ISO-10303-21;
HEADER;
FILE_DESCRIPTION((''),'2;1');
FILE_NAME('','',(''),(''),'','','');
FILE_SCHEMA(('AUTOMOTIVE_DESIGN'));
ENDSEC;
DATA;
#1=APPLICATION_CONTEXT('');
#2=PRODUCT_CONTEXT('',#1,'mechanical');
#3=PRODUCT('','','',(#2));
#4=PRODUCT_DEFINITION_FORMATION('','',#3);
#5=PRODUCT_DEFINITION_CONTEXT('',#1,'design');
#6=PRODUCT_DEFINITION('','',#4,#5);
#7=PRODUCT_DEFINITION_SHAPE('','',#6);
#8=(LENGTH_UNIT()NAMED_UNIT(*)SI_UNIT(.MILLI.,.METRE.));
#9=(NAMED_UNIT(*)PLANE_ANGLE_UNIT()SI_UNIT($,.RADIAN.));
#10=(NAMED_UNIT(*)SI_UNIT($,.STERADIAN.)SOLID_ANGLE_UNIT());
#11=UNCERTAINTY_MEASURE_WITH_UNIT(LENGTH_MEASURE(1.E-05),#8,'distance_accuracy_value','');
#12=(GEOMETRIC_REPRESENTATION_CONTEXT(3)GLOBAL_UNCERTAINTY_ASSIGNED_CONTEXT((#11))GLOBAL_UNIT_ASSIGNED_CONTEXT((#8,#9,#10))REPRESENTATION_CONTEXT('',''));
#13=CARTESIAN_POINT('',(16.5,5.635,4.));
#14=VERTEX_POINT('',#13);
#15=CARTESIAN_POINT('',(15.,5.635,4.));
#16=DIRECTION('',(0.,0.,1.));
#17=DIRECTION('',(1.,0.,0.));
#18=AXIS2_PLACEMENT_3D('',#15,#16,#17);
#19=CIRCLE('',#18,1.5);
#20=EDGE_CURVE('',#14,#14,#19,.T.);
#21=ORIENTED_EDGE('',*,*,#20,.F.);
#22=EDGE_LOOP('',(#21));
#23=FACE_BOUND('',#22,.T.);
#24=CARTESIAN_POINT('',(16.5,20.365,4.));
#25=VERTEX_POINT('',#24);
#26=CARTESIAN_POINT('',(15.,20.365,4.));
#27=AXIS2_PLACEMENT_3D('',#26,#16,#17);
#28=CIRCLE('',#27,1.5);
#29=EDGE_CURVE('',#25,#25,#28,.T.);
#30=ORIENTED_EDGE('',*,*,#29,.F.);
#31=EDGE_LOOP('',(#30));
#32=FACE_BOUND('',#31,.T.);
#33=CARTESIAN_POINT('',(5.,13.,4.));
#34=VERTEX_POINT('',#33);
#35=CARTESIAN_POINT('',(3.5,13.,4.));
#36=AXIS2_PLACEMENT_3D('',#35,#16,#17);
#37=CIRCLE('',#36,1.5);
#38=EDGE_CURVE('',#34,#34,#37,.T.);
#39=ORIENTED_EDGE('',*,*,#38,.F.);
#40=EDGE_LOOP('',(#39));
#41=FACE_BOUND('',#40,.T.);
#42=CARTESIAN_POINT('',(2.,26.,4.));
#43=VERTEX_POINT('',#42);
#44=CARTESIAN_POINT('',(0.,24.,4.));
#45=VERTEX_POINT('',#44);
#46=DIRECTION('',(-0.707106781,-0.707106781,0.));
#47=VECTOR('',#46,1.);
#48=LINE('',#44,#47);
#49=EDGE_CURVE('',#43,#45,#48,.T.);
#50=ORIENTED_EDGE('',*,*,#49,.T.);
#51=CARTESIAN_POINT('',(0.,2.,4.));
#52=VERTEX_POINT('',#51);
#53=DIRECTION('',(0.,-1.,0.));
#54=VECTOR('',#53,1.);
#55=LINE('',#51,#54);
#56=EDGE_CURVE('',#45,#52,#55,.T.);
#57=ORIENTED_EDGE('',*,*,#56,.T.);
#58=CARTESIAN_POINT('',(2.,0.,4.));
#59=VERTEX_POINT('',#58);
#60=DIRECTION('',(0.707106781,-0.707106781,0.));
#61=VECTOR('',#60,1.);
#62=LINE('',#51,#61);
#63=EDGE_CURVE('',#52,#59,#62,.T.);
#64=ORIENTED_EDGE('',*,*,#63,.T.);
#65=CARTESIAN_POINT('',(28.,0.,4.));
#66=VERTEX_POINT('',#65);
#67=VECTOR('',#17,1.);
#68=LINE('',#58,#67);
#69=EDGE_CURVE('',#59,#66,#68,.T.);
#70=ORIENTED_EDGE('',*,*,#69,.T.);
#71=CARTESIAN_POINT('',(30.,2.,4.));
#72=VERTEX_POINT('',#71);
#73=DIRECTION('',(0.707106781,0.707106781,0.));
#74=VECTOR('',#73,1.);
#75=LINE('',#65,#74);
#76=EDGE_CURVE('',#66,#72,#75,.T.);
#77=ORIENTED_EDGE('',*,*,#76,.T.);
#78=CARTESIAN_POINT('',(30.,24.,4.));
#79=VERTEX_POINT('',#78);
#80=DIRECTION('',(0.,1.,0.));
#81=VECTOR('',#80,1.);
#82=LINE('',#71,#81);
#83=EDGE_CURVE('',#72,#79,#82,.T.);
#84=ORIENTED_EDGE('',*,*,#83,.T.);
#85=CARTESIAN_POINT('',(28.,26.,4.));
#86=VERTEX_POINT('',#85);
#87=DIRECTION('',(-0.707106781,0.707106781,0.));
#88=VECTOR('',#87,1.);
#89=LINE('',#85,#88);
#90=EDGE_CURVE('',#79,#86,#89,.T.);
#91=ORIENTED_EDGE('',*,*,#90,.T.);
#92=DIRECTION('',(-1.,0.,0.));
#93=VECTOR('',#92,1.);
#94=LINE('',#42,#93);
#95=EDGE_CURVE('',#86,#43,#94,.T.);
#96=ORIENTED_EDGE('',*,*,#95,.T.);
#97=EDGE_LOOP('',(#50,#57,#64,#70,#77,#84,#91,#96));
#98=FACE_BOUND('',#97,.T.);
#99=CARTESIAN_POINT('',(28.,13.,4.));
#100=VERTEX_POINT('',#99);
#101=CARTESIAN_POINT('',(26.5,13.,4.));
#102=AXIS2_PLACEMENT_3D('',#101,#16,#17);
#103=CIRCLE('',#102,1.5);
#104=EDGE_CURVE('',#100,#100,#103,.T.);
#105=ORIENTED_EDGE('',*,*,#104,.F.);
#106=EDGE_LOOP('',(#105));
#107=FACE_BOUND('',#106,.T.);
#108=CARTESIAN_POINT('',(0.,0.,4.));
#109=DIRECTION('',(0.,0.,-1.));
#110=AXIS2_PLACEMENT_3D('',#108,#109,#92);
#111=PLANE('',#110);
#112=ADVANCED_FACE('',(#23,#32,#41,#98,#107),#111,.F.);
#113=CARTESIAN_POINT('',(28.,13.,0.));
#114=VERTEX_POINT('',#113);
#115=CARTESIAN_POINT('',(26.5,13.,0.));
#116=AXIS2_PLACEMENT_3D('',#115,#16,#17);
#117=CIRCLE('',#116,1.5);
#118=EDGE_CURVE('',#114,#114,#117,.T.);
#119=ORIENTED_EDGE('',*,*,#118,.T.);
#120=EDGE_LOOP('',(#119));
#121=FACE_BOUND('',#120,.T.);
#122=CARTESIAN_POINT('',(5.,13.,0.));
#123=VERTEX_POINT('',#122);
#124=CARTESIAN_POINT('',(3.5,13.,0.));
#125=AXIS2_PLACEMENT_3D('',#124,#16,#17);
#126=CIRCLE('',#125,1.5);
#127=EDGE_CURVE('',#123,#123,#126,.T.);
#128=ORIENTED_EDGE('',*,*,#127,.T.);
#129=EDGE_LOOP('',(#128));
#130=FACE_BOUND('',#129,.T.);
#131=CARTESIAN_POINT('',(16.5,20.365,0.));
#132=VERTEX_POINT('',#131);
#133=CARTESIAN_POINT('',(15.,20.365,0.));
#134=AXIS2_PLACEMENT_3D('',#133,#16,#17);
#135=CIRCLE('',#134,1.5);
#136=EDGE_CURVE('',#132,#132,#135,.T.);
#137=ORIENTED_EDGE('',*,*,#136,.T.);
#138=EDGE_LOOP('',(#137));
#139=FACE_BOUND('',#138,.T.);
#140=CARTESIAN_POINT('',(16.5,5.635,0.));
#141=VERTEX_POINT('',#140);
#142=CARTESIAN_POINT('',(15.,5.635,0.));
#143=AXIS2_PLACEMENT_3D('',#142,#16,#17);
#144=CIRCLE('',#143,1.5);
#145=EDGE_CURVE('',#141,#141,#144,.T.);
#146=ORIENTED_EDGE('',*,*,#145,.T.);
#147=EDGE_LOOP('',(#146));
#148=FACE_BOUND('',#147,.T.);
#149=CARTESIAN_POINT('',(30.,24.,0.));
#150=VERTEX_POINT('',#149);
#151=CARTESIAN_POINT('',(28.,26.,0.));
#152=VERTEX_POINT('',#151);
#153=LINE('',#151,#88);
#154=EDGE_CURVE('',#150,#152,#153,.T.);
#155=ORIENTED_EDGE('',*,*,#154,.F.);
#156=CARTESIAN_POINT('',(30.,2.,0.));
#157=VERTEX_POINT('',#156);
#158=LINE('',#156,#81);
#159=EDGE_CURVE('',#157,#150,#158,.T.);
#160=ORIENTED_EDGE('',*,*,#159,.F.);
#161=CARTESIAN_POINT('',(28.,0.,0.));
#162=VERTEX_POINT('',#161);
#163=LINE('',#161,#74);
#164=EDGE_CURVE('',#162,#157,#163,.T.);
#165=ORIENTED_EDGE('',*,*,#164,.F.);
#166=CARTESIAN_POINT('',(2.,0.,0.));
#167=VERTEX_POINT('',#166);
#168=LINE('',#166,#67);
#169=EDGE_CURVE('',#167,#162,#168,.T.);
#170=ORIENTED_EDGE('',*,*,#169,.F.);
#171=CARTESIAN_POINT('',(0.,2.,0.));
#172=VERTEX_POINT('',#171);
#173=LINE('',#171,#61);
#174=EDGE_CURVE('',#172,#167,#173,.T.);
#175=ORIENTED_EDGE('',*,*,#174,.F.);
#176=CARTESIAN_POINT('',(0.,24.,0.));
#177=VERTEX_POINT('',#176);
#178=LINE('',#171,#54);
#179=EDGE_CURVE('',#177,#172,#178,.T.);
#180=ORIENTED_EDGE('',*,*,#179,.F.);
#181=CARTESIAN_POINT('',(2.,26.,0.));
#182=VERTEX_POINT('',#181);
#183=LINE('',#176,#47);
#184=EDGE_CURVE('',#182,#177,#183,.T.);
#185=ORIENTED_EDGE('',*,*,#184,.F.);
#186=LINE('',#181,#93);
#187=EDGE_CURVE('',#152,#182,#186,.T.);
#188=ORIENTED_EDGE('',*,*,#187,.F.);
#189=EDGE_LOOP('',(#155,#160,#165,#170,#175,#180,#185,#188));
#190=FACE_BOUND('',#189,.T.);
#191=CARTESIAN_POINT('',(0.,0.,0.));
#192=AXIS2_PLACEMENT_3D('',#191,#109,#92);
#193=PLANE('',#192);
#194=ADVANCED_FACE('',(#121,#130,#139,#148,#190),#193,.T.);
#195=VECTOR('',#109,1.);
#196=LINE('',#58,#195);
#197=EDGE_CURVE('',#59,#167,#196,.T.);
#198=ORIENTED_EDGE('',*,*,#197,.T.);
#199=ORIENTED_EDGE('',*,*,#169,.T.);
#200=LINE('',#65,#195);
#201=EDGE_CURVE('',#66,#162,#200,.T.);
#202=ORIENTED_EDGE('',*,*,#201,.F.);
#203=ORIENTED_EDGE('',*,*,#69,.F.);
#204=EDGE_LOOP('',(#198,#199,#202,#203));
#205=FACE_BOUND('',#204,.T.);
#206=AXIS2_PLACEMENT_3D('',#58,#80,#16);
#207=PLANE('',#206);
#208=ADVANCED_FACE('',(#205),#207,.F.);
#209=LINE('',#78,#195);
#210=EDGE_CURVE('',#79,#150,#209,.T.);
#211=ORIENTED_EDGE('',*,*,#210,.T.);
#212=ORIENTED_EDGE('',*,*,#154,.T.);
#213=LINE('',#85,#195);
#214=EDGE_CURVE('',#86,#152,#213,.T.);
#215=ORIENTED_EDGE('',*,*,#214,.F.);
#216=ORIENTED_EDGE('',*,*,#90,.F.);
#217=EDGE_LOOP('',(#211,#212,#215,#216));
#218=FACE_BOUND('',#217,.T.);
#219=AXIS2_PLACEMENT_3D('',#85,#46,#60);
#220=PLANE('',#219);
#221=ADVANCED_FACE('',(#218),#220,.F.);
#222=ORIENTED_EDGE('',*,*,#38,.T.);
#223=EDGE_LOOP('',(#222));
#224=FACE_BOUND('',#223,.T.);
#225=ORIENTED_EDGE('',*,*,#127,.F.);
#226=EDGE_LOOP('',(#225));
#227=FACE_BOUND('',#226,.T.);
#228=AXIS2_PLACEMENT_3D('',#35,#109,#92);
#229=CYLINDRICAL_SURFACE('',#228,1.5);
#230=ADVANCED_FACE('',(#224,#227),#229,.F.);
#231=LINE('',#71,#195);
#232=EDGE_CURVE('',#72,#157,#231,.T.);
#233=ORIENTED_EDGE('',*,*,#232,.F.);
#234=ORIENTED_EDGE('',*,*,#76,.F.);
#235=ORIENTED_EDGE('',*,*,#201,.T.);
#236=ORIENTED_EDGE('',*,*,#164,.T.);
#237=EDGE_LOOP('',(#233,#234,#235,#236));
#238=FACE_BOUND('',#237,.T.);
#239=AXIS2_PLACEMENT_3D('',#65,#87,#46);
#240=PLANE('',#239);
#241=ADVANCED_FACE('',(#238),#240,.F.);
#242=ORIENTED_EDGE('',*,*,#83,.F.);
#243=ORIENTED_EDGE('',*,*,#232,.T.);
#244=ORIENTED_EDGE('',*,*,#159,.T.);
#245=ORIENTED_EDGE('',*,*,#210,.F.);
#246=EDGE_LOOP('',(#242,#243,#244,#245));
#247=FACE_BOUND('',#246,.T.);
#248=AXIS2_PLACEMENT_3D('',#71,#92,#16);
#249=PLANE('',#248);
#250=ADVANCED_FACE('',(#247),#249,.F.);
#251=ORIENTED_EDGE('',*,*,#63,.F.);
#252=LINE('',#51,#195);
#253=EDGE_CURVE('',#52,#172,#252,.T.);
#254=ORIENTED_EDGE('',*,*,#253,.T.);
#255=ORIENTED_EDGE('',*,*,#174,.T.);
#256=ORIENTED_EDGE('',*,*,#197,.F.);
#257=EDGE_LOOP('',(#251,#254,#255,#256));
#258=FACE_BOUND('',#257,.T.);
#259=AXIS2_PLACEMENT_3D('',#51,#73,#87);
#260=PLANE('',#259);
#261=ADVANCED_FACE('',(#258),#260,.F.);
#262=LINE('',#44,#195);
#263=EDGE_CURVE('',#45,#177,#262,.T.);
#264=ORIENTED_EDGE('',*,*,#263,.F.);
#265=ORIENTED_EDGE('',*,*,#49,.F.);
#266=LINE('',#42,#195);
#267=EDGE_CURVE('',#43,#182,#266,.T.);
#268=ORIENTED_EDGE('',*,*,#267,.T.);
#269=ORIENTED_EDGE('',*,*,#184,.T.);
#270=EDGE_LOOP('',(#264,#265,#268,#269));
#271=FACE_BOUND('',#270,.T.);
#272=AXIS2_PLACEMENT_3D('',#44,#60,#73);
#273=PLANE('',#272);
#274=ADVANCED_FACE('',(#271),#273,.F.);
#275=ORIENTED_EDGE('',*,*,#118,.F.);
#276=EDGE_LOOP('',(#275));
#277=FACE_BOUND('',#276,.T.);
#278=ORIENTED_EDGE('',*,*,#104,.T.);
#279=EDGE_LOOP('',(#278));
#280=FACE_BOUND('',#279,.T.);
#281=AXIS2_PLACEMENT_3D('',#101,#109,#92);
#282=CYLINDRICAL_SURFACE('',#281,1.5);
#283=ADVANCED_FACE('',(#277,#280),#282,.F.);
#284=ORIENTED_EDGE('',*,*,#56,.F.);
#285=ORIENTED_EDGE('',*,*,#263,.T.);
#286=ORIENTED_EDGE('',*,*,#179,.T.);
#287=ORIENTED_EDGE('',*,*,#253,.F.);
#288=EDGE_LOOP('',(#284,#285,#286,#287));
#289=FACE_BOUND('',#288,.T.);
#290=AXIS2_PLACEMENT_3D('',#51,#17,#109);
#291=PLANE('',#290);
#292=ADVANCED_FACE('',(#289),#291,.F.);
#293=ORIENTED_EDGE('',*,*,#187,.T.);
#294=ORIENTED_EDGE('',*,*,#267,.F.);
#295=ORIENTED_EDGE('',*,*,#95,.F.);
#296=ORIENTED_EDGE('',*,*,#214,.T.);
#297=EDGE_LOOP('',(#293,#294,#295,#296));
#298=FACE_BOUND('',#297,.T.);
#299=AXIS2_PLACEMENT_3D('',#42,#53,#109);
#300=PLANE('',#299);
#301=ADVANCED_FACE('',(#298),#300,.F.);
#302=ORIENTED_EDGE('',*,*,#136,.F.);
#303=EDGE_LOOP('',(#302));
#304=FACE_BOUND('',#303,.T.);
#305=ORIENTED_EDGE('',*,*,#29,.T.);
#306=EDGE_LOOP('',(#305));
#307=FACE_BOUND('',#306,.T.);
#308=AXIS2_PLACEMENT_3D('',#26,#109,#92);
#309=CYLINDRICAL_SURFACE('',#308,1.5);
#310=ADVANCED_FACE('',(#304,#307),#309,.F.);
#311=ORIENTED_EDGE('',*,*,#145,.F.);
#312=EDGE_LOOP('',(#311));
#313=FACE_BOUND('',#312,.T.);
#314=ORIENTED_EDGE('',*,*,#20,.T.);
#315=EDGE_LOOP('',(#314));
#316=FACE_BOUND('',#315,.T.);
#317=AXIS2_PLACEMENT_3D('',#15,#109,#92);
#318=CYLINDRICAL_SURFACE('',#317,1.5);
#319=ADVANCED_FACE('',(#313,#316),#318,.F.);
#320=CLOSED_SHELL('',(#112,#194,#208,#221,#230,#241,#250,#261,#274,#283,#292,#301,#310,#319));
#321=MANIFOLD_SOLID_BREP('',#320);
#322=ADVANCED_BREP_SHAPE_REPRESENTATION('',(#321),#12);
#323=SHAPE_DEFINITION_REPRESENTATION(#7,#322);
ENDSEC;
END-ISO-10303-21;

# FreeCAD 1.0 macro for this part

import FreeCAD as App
import Part
import Sketcher

V = App.Vector
Q = App.Units.Quantity


def add_polygon(sketch, points):
    """Adds a closed chain of lines whose ends are joined by coincident constraints."""
    first, n = sketch.GeometryCount, len(points)
    for a, b in zip(points, points[1:] + points[:1]):
        sketch.addGeometry(Part.LineSegment(App.Vector(*a, 0), App.Vector(*b, 0)), False)
    for i in range(n):
        sketch.addConstraint(Sketcher.Constraint("Coincident", first + i, 2, first + (i + 1) % n, 1))

doc = App.newDocument("Part")
params = doc.addObject("Spreadsheet::Sheet", "Params")
for row, (alias, value) in enumerate([
    ("sketch1_diameter", "3 mm"),
    ("sketch1_width", "26 mm"),
    ("sketch1_height", "22 mm"),
    ("pad1_length", "4 mm"),
], start=1):
    params.set(f"A{row}", alias)
    params.set(f"B{row}", "=" + value)
    params.setAlias(f"B{row}", alias)

body = doc.addObject("PartDesign::Body", "Body")

# Sketch on XY plane
sketch1 = body.newObject("Sketcher::SketchObject", "Sketch")
sketch1.AttachmentSupport = (doc.getObject("XY_Plane"), [""])
sketch1.MapMode = "FlatFace"
add_polygon(sketch1, [(2, 26), (0, 24), (0, 2), (2, 0), (28, 0), (30, 2), (30, 24), (28, 26)])  # lines 0-7
sketch1.addGeometry(Part.Circle(V(15, 5.6, 0), V(0, 0, 1), 1.5), False)  # 8
sketch1.addGeometry(Part.Circle(V(26.5, 13, 0), V(0, 0, 1), 1.5), False)  # 9
sketch1.addGeometry(Part.Circle(V(3.5, 13, 0), V(0, 0, 1), 1.5), False)  # 10
sketch1.addGeometry(Part.Circle(V(15, 20.4, 0), V(0, 0, 1), 1.5), False)  # 11
sketch1.addConstraint([
    Sketcher.Constraint("Vertical", 1),
    Sketcher.Constraint("Horizontal", 3),
    Sketcher.Constraint("Vertical", 5),
    Sketcher.Constraint("Horizontal", 7),
    Sketcher.Constraint("Equal", 8, 9),
    Sketcher.Constraint("Equal", 9, 10),
    Sketcher.Constraint("Equal", 10, 11),
    Sketcher.Constraint("PointOnObject", 0, 2, -2),
    Sketcher.Constraint("PointOnObject", 2, 2, -1),
    Sketcher.Constraint("Perpendicular", 0, 2),
    Sketcher.Constraint("Perpendicular", 2, 4),
    Sketcher.Constraint("Perpendicular", 4, 6),
    Sketcher.Constraint("Horizontal", 9, 3, 10, 3),
    Sketcher.Constraint("Horizontal", 1, 2, 4, 2),
    Sketcher.Constraint("Horizontal", 0, 2, 5, 2),
    Sketcher.Constraint("Vertical", 8, 3, 11, 3),
    Sketcher.Constraint("Vertical", 3, 2, 6, 2),
    Sketcher.Constraint("Vertical", 2, 2, 7, 2),
    Sketcher.Constraint("Diameter", 8, Q("3 mm")),
    Sketcher.Constraint("DistanceX", 3, 1, 3, 2, Q("26 mm")),
    Sketcher.Constraint("DistanceY", 1, 2, 1, 1, Q("22 mm")),
    Sketcher.Constraint("DistanceX", -1, 1, 8, 3, Q("15 mm")),
    Sketcher.Constraint("DistanceY", -1, 1, 9, 3, Q("13 mm")),
    Sketcher.Constraint("DistanceY", -1, 1, 0, 2, Q("24 mm")),
    Sketcher.Constraint("DistanceX", 10, 3, 9, 3, Q("23 mm")),
    Sketcher.Constraint("DistanceX", -1, 1, 9, 3, Q("26.5 mm")),
    Sketcher.Constraint("DistanceY", 8, 3, 11, 3, Q("14.73 mm")),
    Sketcher.Constraint("DistanceY", -1, 1, 8, 3, Q("5.635 mm")),
])
sketch1.setExpression("Constraints[26]", "Params.sketch1_diameter")
sketch1.setExpression("Constraints[27]", "Params.sketch1_width")
sketch1.setExpression("Constraints[28]", "Params.sketch1_height")
pad1 = body.newObject("PartDesign::Pad", "Pad")
pad1.Profile = sketch1
pad1.setExpression("Length", "Params.pad1_length")

doc.recompute()
